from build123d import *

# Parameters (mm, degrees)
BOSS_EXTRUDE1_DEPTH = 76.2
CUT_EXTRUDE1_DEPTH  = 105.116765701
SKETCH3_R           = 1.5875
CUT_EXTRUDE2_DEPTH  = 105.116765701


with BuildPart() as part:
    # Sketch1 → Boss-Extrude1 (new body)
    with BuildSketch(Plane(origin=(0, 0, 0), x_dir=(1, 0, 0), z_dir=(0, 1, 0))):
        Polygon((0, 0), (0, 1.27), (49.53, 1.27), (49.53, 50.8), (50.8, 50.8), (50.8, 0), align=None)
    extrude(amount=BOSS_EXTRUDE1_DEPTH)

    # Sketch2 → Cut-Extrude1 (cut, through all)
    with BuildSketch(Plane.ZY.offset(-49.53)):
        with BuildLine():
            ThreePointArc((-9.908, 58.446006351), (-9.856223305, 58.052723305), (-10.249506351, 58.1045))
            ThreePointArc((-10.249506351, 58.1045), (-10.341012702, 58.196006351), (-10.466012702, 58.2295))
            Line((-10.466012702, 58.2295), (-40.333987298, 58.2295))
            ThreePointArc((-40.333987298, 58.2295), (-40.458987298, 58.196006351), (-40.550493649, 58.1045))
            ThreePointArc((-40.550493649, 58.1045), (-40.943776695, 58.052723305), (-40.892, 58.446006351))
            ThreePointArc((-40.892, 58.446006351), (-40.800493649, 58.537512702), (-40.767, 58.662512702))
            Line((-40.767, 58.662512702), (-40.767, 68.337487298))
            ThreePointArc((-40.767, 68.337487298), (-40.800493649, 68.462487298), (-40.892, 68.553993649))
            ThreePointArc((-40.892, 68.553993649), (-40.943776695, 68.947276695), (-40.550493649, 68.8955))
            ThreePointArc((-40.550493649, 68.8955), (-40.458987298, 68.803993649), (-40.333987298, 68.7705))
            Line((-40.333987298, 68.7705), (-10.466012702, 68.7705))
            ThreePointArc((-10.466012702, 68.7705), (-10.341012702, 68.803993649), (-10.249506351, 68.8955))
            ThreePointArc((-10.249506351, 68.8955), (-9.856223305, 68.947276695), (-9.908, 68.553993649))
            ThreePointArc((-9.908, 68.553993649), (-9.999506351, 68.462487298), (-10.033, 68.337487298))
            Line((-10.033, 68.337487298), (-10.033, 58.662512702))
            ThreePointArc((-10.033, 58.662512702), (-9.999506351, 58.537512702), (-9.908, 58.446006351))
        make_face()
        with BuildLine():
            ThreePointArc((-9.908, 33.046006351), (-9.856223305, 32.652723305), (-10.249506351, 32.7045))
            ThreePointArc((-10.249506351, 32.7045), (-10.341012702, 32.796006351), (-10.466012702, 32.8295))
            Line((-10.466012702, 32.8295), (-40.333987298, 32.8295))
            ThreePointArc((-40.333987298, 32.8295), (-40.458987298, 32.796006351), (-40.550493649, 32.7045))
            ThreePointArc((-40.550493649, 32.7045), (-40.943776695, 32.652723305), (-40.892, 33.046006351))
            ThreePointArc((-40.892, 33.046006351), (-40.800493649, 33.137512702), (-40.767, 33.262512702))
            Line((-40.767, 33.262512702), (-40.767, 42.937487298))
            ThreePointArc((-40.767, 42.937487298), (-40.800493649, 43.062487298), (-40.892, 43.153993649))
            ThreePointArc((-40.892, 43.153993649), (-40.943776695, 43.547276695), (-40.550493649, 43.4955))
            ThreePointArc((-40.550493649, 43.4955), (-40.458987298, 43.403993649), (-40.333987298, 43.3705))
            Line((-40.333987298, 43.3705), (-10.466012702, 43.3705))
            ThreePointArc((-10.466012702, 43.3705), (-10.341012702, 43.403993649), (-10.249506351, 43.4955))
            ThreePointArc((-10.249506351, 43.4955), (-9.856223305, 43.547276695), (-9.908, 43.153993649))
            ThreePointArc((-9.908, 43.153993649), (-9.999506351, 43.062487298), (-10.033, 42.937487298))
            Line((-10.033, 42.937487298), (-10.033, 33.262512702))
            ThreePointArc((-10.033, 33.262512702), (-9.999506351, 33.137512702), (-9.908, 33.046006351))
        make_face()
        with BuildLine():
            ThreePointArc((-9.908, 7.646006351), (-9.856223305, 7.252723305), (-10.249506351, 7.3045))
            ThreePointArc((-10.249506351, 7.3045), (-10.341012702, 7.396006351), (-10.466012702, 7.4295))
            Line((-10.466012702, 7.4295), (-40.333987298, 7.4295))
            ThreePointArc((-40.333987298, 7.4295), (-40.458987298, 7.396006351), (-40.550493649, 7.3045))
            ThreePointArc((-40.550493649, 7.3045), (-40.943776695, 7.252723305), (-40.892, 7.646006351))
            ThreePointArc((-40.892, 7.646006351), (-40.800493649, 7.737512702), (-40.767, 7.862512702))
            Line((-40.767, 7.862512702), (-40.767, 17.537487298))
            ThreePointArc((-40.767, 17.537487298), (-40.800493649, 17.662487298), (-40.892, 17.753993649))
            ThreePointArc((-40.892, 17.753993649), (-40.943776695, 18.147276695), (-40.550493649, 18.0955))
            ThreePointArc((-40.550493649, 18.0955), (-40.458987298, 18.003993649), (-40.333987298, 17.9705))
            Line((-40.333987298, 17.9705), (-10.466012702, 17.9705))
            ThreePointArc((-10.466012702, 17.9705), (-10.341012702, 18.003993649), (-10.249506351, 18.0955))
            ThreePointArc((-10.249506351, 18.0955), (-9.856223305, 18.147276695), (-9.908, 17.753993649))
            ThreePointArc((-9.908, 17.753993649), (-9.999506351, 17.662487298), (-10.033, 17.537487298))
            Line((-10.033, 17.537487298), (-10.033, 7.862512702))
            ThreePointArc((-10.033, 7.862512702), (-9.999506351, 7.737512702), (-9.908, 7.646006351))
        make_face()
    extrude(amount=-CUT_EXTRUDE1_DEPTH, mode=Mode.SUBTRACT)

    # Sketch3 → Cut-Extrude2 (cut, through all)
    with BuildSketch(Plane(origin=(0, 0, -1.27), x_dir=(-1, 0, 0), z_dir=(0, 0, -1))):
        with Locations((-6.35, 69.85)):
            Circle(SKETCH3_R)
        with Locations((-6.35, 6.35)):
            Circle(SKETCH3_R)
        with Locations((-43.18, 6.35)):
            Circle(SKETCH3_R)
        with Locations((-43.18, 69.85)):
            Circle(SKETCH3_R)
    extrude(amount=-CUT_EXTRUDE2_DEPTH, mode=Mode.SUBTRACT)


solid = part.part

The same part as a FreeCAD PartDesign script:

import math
import FreeCAD as App
import Part
import Sketcher
from FreeCAD import Vector
Q = App.Units.Quantity


def add_polygon(sketch, points):
    """Adds a closed chain of lines whose ends are joined by coincident constraints."""
    first, n = sketch.GeometryCount, len(points)
    for a, b in zip(points, points[1:] + points[:1]):
        sketch.addGeometry(Part.LineSegment(App.Vector(*a, 0), App.Vector(*b, 0)), False)
    for i in range(n):
        sketch.addConstraint(Sketcher.Constraint("Coincident", first + i, 2, first + (i + 1) % n, 1))

doc = App.newDocument("Part")
body = doc.addObject("PartDesign::Body", "Body")

# Sketch on XZ plane
sketch1 = doc.addObject("Sketcher::SketchObject", "Sketch")
body.addObject(sketch1)
sketch1.AttachmentSupport = (doc.XZ_Plane, [""])
sketch1.MapMode = "FlatFace"
add_polygon(sketch1, [(0, -1.3), (0, 0), (50.8, 0), (50.8, -50.8), (49.5, -50.8), (49.5, -1.3)])  # lines 0-5
sketch1.addConstraint([
    Sketcher.Constraint("Vertical", 0),
    Sketcher.Constraint("Horizontal", 1),
    Sketcher.Constraint("Vertical", 2),
    Sketcher.Constraint("Horizontal", 3),
    Sketcher.Constraint("Vertical", 4),
    Sketcher.Constraint("Horizontal", 5),
    Sketcher.Constraint("Coincident", 0, 2, -1, 1),
    Sketcher.Constraint("Equal", 3, 0),
    Sketcher.Constraint("Equal", 1, 2),
    Sketcher.Constraint("DistanceX", 1, 1, 1, 2, Q("2 in")),
    Sketcher.Constraint("DistanceX", 3, 2, 3, 1, Q("0.05 in")),
])
pad1 = doc.addObject("PartDesign::Pad", "Pad")
body.addObject(pad1)
pad1.Profile = sketch1
pad1.Length = Q("3 in")
pad1.Reversed = True

# Sketch on YZ plane
sketch2 = doc.addObject("Sketcher::SketchObject", "Sketch001")
body.addObject(sketch2)
sketch2.AttachmentSupport = (doc.YZ_Plane, [""])
sketch2.MapMode = "FlatFace"
sketch2.AttachmentOffset = App.Placement(Vector(0, 0, 1.95 * 25.4), App.Rotation())
sketch2.addGeometry([
    Part.ArcOfCircle(Part.Circle(Vector(58.23, -10.03, 0), Vector(0, 0, 1), 0.25), math.radians(30), math.radians(240)),  # 0
    Part.ArcOfCircle(Part.Circle(Vector(58.66, -9.78, 0), Vector(0, 0, 1), 0.25), math.radians(-150), math.radians(-90)),  # 1
    Part.LineSegment(Vector(58.66, -10.03, 0), Vector(68.34, -10.03, 0)),  # 2
    Part.ArcOfCircle(Part.Circle(Vector(68.34, -9.78, 0), Vector(0, 0, 1), 0.25), math.radians(-90), math.radians(-30)),  # 3
    Part.ArcOfCircle(Part.Circle(Vector(68.77, -10.03, 0), Vector(0, 0, 1), 0.25), math.radians(-60), math.radians(150)),  # 4
    Part.ArcOfCircle(Part.Circle(Vector(69.02, -10.47, 0), Vector(0, 0, 1), 0.25), math.radians(120), math.radians(180)),  # 5
    Part.LineSegment(Vector(68.77, -10.47, 0), Vector(68.77, -40.33, 0)),  # 6
    Part.ArcOfCircle(Part.Circle(Vector(69.02, -40.33, 0), Vector(0, 0, 1), 0.25), math.radians(180), math.radians(240)),  # 7
    Part.ArcOfCircle(Part.Circle(Vector(68.77, -40.77, 0), Vector(0, 0, 1), 0.25), math.radians(-150), math.radians(60)),  # 8
    Part.ArcOfCircle(Part.Circle(Vector(68.34, -41.02, 0), Vector(0, 0, 1), 0.25), math.radians(30), math.radians(90)),  # 9
    Part.LineSegment(Vector(68.34, -40.77, 0), Vector(58.66, -40.77, 0)),  # 10
    Part.ArcOfCircle(Part.Circle(Vector(58.66, -41.02, 0), Vector(0, 0, 1), 0.25), math.radians(90), math.radians(150)),  # 11
    Part.ArcOfCircle(Part.Circle(Vector(58.23, -40.77, 0), Vector(0, 0, 1), 0.25), math.radians(120), math.radians(330)),  # 12
    Part.ArcOfCircle(Part.Circle(Vector(57.98, -40.33, 0), Vector(0, 0, 1), 0.25), math.radians(-60), math.radians(0)),  # 13
    Part.LineSegment(Vector(58.23, -40.33, 0), Vector(58.23, -10.47, 0)),  # 14
    Part.ArcOfCircle(Part.Circle(Vector(57.98, -10.47, 0), Vector(0, 0, 1), 0.25), math.radians(0), math.radians(60)),  # 15
    Part.ArcOfCircle(Part.Circle(Vector(32.83, -10.03, 0), Vector(0, 0, 1), 0.25), math.radians(30), math.radians(240)),  # 16
    Part.ArcOfCircle(Part.Circle(Vector(33.26, -9.78, 0), Vector(0, 0, 1), 0.25), math.radians(-150), math.radians(-90)),  # 17
    Part.LineSegment(Vector(33.26, -10.03, 0), Vector(42.94, -10.03, 0)),  # 18
    Part.ArcOfCircle(Part.Circle(Vector(42.94, -9.78, 0), Vector(0, 0, 1), 0.25), math.radians(-90), math.radians(-30)),  # 19
    Part.ArcOfCircle(Part.Circle(Vector(43.37, -10.03, 0), Vector(0, 0, 1), 0.25), math.radians(-60), math.radians(150)),  # 20
    Part.ArcOfCircle(Part.Circle(Vector(43.62, -10.47, 0), Vector(0, 0, 1), 0.25), math.radians(120), math.radians(180)),  # 21
    Part.LineSegment(Vector(43.37, -10.47, 0), Vector(43.37, -40.33, 0)),  # 22
    Part.ArcOfCircle(Part.Circle(Vector(43.62, -40.33, 0), Vector(0, 0, 1), 0.25), math.radians(180), math.radians(240)),  # 23
    Part.ArcOfCircle(Part.Circle(Vector(43.37, -40.77, 0), Vector(0, 0, 1), 0.25), math.radians(-150), math.radians(60)),  # 24
    Part.ArcOfCircle(Part.Circle(Vector(42.94, -41.02, 0), Vector(0, 0, 1), 0.25), math.radians(30), math.radians(90)),  # 25
    Part.LineSegment(Vector(42.94, -40.77, 0), Vector(33.26, -40.77, 0)),  # 26
    Part.ArcOfCircle(Part.Circle(Vector(33.26, -41.02, 0), Vector(0, 0, 1), 0.25), math.radians(90), math.radians(150)),  # 27
    Part.ArcOfCircle(Part.Circle(Vector(32.83, -40.77, 0), Vector(0, 0, 1), 0.25), math.radians(120), math.radians(330)),  # 28
    Part.ArcOfCircle(Part.Circle(Vector(32.58, -40.33, 0), Vector(0, 0, 1), 0.25), math.radians(-60), math.radians(0)),  # 29
    Part.LineSegment(Vector(32.83, -40.33, 0), Vector(32.83, -10.47, 0)),  # 30
    Part.ArcOfCircle(Part.Circle(Vector(32.58, -10.47, 0), Vector(0, 0, 1), 0.25), math.radians(0), math.radians(60)),  # 31
    Part.ArcOfCircle(Part.Circle(Vector(7.43, -10.03, 0), Vector(0, 0, 1), 0.25), math.radians(30), math.radians(240)),  # 32
    Part.ArcOfCircle(Part.Circle(Vector(7.86, -9.78, 0), Vector(0, 0, 1), 0.25), math.radians(-150), math.radians(-90)),  # 33
    Part.LineSegment(Vector(7.86, -10.03, 0), Vector(17.54, -10.03, 0)),  # 34
    Part.ArcOfCircle(Part.Circle(Vector(17.54, -9.78, 0), Vector(0, 0, 1), 0.25), math.radians(-90), math.radians(-30)),  # 35
    Part.ArcOfCircle(Part.Circle(Vector(17.97, -10.03, 0), Vector(0, 0, 1), 0.25), math.radians(-60), math.radians(150)),  # 36
    Part.ArcOfCircle(Part.Circle(Vector(18.22, -10.47, 0), Vector(0, 0, 1), 0.25), math.radians(120), math.radians(180)),  # 37
    Part.LineSegment(Vector(17.97, -10.47, 0), Vector(17.97, -40.33, 0)),  # 38
    Part.ArcOfCircle(Part.Circle(Vector(18.22, -40.33, 0), Vector(0, 0, 1), 0.25), math.radians(180), math.radians(240)),  # 39
    Part.ArcOfCircle(Part.Circle(Vector(17.97, -40.77, 0), Vector(0, 0, 1), 0.25), math.radians(-150), math.radians(60)),  # 40
    Part.ArcOfCircle(Part.Circle(Vector(17.54, -41.02, 0), Vector(0, 0, 1), 0.25), math.radians(30), math.radians(90)),  # 41
    Part.LineSegment(Vector(17.54, -40.77, 0), Vector(7.86, -40.77, 0)),  # 42
    Part.ArcOfCircle(Part.Circle(Vector(7.86, -41.02, 0), Vector(0, 0, 1), 0.25), math.radians(90), math.radians(150)),  # 43
    Part.ArcOfCircle(Part.Circle(Vector(7.43, -40.77, 0), Vector(0, 0, 1), 0.25), math.radians(120), math.radians(330)),  # 44
    Part.ArcOfCircle(Part.Circle(Vector(7.18, -40.33, 0), Vector(0, 0, 1), 0.25), math.radians(-60), math.radians(0)),  # 45
    Part.LineSegment(Vector(7.43, -40.33, 0), Vector(7.43, -10.47, 0)),  # 46
    Part.ArcOfCircle(Part.Circle(Vector(7.18, -10.47, 0), Vector(0, 0, 1), 0.25), math.radians(0), math.radians(60)),  # 47
], False)
sketch2.addConstraint([
    Sketcher.Constraint("Tangent", 0, 1, 1, 1),
    Sketcher.Constraint("Tangent", 1, 2, 2, 1),
    Sketcher.Constraint("Tangent", 2, 2, 3, 1),
    Sketcher.Constraint("Tangent", 3, 2, 4, 2),
    Sketcher.Constraint("Tangent", 4, 1, 5, 1),
    Sketcher.Constraint("Tangent", 5, 2, 6, 1),
    Sketcher.Constraint("Tangent", 6, 2, 7, 1),
    Sketcher.Constraint("Tangent", 7, 2, 8, 2),
    Sketcher.Constraint("Tangent", 8, 1, 9, 1),
    Sketcher.Constraint("Tangent", 9, 2, 10, 1),
    Sketcher.Constraint("Tangent", 10, 2, 11, 1),
    Sketcher.Constraint("Tangent", 11, 2, 12, 2),
    Sketcher.Constraint("Tangent", 12, 1, 13, 1),
    Sketcher.Constraint("Tangent", 13, 2, 14, 1),
    Sketcher.Constraint("Tangent", 14, 2, 15, 1),
    Sketcher.Constraint("Tangent", 15, 2, 0, 2),
    Sketcher.Constraint("Tangent", 16, 1, 17, 1),
    Sketcher.Constraint("Tangent", 17, 2, 18, 1),
    Sketcher.Constraint("Tangent", 18, 2, 19, 1),
    Sketcher.Constraint("Tangent", 19, 2, 20, 2),
    Sketcher.Constraint("Tangent", 20, 1, 21, 1),
    Sketcher.Constraint("Tangent", 21, 2, 22, 1),
    Sketcher.Constraint("Tangent", 22, 2, 23, 1),
    Sketcher.Constraint("Tangent", 23, 2, 24, 2),
    Sketcher.Constraint("Tangent", 24, 1, 25, 1),
    Sketcher.Constraint("Tangent", 25, 2, 26, 1),
    Sketcher.Constraint("Tangent", 26, 2, 27, 1),
    Sketcher.Constraint("Tangent", 27, 2, 28, 2),
    Sketcher.Constraint("Tangent", 28, 1, 29, 1),
    Sketcher.Constraint("Tangent", 29, 2, 30, 1),
    Sketcher.Constraint("Tangent", 30, 2, 31, 1),
    Sketcher.Constraint("Tangent", 31, 2, 16, 2),
    Sketcher.Constraint("Tangent", 32, 1, 33, 1),
    Sketcher.Constraint("Tangent", 33, 2, 34, 1),
    Sketcher.Constraint("Tangent", 34, 2, 35, 1),
    Sketcher.Constraint("Tangent", 35, 2, 36, 2),
    Sketcher.Constraint("Tangent", 36, 1, 37, 1),
    Sketcher.Constraint("Tangent", 37, 2, 38, 1),
    Sketcher.Constraint("Tangent", 38, 2, 39, 1),
    Sketcher.Constraint("Tangent", 39, 2, 40, 2),
    Sketcher.Constraint("Tangent", 40, 1, 41, 1),
    Sketcher.Constraint("Tangent", 41, 2, 42, 1),
    Sketcher.Constraint("Tangent", 42, 2, 43, 1),
    Sketcher.Constraint("Tangent", 43, 2, 44, 2),
    Sketcher.Constraint("Tangent", 44, 1, 45, 1),
    Sketcher.Constraint("Tangent", 45, 2, 46, 1),
    Sketcher.Constraint("Tangent", 46, 2, 47, 1),
    Sketcher.Constraint("Tangent", 47, 2, 32, 2),
    Sketcher.Constraint("Horizontal", 2),
    Sketcher.Constraint("Vertical", 6),
    Sketcher.Constraint("Horizontal", 10),
    Sketcher.Constraint("Vertical", 14),
    Sketcher.Constraint("Horizontal", 18),
    Sketcher.Constraint("Vertical", 22),
    Sketcher.Constraint("Horizontal", 26),
    Sketcher.Constraint("Vertical", 30),
    Sketcher.Constraint("Horizontal", 34),
    Sketcher.Constraint("Vertical", 38),
    Sketcher.Constraint("Horizontal", 42),
    Sketcher.Constraint("Vertical", 46),
    Sketcher.Constraint("Equal", 0, 1),
    Sketcher.Constraint("Equal", 1, 3),
    Sketcher.Constraint("Equal", 3, 4),
    Sketcher.Constraint("Equal", 4, 5),
    Sketcher.Constraint("Equal", 5, 7),
    Sketcher.Constraint("Equal", 7, 8),
    Sketcher.Constraint("Equal", 8, 9),
    Sketcher.Constraint("Equal", 9, 11),
    Sketcher.Constraint("Equal", 11, 12),
    Sketcher.Constraint("Equal", 12, 13),
    Sketcher.Constraint("Equal", 13, 15),
    Sketcher.Constraint("Equal", 15, 16),
    Sketcher.Constraint("Equal", 16, 17),
    Sketcher.Constraint("Equal", 17, 19),
    Sketcher.Constraint("Equal", 19, 20),
    Sketcher.Constraint("Equal", 20, 21),
    Sketcher.Constraint("Equal", 21, 23),
    Sketcher.Constraint("Equal", 23, 24),
    Sketcher.Constraint("Equal", 24, 25),
    Sketcher.Constraint("Equal", 25, 27),
    Sketcher.Constraint("Equal", 27, 28),
    Sketcher.Constraint("Equal", 28, 29),
    Sketcher.Constraint("Equal", 29, 31),
    Sketcher.Constraint("Equal", 31, 32),
    Sketcher.Constraint("Equal", 32, 33),
    Sketcher.Constraint("Equal", 33, 35),
    Sketcher.Constraint("Equal", 35, 36),
    Sketcher.Constraint("Equal", 36, 37),
    Sketcher.Constraint("Equal", 37, 39),
    Sketcher.Constraint("Equal", 39, 40),
    Sketcher.Constraint("Equal", 40, 41),
    Sketcher.Constraint("Equal", 41, 43),
    Sketcher.Constraint("Equal", 43, 44),
    Sketcher.Constraint("Equal", 44, 45),
    Sketcher.Constraint("Equal", 45, 47),
    Sketcher.Constraint("Horizontal", 0, 3, 4, 3),
    Sketcher.Constraint("Horizontal", 8, 3, 12, 3),
    Sketcher.Constraint("Horizontal", 7, 3, 13, 3),
    Sketcher.Constraint("Horizontal", 5, 3, 15, 3),
    Sketcher.Constraint("Horizontal", 4, 3, 16, 3),
    Sketcher.Constraint("Horizontal", 3, 3, 17, 3),
    Sketcher.Constraint("Horizontal", 16, 3, 20, 3),
    Sketcher.Constraint("Horizontal", 15, 3, 21, 3),
    Sketcher.Constraint("Horizontal", 13, 3, 23, 3),
    Sketcher.Constraint("Horizontal", 12, 3, 24, 3),
    Sketcher.Constraint("Horizontal", 11, 3, 25, 3),
    Sketcher.Constraint("Horizontal", 24, 3, 28, 3),
    Sketcher.Constraint("Horizontal", 23, 3, 29, 3),
    Sketcher.Constraint("Horizontal", 21, 3, 31, 3),
    Sketcher.Constraint("Horizontal", 20, 3, 32, 3),
    Sketcher.Constraint("Horizontal", 19, 3, 33, 3),
    Sketcher.Constraint("Horizontal", 32, 3, 36, 3),
    Sketcher.Constraint("Horizontal", 31, 3, 37, 3),
    Sketcher.Constraint("Horizontal", 29, 3, 39, 3),
    Sketcher.Constraint("Horizontal", 28, 3, 40, 3),
    Sketcher.Constraint("Horizontal", 27, 3, 41, 3),
    Sketcher.Constraint("Horizontal", 40, 3, 44, 3),
    Sketcher.Constraint("Horizontal", 39, 3, 45, 3),
    Sketcher.Constraint("Horizontal", 37, 3, 47, 3),
    Sketcher.Constraint("Horizontal", 36, 3, 1, 2),
    Sketcher.Constraint("Horizontal", 44, 3, 9, 2),
    Sketcher.Constraint("Vertical", 4, 3, 8, 3),
    Sketcher.Constraint("Vertical", 8, 3, 5, 2),
    Sketcher.Constraint("Equal", 10, 18),
    Sketcher.Constraint("Equal", 26, 34),
    Sketcher.Constraint("Radius", 0, Q("0.25 mm")),
    Sketcher.Constraint("DistanceY", 0, 3, -1, 1, Q("0.395 in")),
    Sketcher.Constraint("DistanceY", 8, 3, -1, 1, Q("1.605 in")),
    Sketcher.Constraint("DistanceX", -1, 1, 0, 3, Q("2.2925 in")),
    Sketcher.Constraint("DistanceX", -1, 1, 4, 3, Q("2.7075 in")),
    Sketcher.Constraint("DistanceX", -1, 1, 16, 3, Q("1.2925 in")),
    Sketcher.Constraint("DistanceX", -1, 1, 32, 3, Q("0.2925 in")),
])
pocket1 = doc.addObject("PartDesign::Pocket", "Pocket")
body.addObject(pocket1)
pocket1.Profile = sketch2
pocket1.Type = "ThroughAll"
pocket1.Reversed = True

# Sketch on XY plane
sketch3 = doc.addObject("Sketcher::SketchObject", "Sketch002")
body.addObject(sketch3)
sketch3.AttachmentSupport = (doc.XY_Plane, [""])
sketch3.MapMode = "FlatFace"
sketch3.AttachmentOffset = App.Placement(Vector(0, 0, -0.05 * 25.4), App.Rotation())
sketch3.addGeometry([
    Part.Circle(Vector(6.3, 69.8, 0), Vector(0, 0, 1), 1.6),
    Part.Circle(Vector(6.3, 6.3, 0), Vector(0, 0, 1), 1.6),
    Part.Circle(Vector(43.2, 6.3, 0), Vector(0, 0, 1), 1.6),
    Part.Circle(Vector(43.2, 69.8, 0), Vector(0, 0, 1), 1.6),
], False)
sketch3.addConstraint([
    Sketcher.Constraint("Equal", 0, 1),
    Sketcher.Constraint("Equal", 1, 2),
    Sketcher.Constraint("Equal", 2, 3),
    Sketcher.Constraint("Horizontal", 1, 3, 2, 3),
    Sketcher.Constraint("Horizontal", 0, 3, 3, 3),
    Sketcher.Constraint("Vertical", 0, 3, 1, 3),
    Sketcher.Constraint("Vertical", 2, 3, 3, 3),
    Sketcher.Constraint("Diameter", 0, Q("0.125 in")),
    Sketcher.Constraint("DistanceX", -1, 1, 2, 3, Q("1.7 in")),
    Sketcher.Constraint("DistanceY", 1, 3, 0, 3, Q("2.5 in")),
    Sketcher.Constraint("DistanceX", -1, 1, 0, 3, Q("0.25 in")),
    Sketcher.Constraint("DistanceY", -1, 1, 0, 3, Q("2.75 in")),
])
pocket2 = doc.addObject("PartDesign::Pocket", "Pocket001")
body.addObject(pocket2)
pocket2.Profile = sketch3
pocket2.Type = "ThroughAll"
pocket2.Reversed = True

doc.recompute()
